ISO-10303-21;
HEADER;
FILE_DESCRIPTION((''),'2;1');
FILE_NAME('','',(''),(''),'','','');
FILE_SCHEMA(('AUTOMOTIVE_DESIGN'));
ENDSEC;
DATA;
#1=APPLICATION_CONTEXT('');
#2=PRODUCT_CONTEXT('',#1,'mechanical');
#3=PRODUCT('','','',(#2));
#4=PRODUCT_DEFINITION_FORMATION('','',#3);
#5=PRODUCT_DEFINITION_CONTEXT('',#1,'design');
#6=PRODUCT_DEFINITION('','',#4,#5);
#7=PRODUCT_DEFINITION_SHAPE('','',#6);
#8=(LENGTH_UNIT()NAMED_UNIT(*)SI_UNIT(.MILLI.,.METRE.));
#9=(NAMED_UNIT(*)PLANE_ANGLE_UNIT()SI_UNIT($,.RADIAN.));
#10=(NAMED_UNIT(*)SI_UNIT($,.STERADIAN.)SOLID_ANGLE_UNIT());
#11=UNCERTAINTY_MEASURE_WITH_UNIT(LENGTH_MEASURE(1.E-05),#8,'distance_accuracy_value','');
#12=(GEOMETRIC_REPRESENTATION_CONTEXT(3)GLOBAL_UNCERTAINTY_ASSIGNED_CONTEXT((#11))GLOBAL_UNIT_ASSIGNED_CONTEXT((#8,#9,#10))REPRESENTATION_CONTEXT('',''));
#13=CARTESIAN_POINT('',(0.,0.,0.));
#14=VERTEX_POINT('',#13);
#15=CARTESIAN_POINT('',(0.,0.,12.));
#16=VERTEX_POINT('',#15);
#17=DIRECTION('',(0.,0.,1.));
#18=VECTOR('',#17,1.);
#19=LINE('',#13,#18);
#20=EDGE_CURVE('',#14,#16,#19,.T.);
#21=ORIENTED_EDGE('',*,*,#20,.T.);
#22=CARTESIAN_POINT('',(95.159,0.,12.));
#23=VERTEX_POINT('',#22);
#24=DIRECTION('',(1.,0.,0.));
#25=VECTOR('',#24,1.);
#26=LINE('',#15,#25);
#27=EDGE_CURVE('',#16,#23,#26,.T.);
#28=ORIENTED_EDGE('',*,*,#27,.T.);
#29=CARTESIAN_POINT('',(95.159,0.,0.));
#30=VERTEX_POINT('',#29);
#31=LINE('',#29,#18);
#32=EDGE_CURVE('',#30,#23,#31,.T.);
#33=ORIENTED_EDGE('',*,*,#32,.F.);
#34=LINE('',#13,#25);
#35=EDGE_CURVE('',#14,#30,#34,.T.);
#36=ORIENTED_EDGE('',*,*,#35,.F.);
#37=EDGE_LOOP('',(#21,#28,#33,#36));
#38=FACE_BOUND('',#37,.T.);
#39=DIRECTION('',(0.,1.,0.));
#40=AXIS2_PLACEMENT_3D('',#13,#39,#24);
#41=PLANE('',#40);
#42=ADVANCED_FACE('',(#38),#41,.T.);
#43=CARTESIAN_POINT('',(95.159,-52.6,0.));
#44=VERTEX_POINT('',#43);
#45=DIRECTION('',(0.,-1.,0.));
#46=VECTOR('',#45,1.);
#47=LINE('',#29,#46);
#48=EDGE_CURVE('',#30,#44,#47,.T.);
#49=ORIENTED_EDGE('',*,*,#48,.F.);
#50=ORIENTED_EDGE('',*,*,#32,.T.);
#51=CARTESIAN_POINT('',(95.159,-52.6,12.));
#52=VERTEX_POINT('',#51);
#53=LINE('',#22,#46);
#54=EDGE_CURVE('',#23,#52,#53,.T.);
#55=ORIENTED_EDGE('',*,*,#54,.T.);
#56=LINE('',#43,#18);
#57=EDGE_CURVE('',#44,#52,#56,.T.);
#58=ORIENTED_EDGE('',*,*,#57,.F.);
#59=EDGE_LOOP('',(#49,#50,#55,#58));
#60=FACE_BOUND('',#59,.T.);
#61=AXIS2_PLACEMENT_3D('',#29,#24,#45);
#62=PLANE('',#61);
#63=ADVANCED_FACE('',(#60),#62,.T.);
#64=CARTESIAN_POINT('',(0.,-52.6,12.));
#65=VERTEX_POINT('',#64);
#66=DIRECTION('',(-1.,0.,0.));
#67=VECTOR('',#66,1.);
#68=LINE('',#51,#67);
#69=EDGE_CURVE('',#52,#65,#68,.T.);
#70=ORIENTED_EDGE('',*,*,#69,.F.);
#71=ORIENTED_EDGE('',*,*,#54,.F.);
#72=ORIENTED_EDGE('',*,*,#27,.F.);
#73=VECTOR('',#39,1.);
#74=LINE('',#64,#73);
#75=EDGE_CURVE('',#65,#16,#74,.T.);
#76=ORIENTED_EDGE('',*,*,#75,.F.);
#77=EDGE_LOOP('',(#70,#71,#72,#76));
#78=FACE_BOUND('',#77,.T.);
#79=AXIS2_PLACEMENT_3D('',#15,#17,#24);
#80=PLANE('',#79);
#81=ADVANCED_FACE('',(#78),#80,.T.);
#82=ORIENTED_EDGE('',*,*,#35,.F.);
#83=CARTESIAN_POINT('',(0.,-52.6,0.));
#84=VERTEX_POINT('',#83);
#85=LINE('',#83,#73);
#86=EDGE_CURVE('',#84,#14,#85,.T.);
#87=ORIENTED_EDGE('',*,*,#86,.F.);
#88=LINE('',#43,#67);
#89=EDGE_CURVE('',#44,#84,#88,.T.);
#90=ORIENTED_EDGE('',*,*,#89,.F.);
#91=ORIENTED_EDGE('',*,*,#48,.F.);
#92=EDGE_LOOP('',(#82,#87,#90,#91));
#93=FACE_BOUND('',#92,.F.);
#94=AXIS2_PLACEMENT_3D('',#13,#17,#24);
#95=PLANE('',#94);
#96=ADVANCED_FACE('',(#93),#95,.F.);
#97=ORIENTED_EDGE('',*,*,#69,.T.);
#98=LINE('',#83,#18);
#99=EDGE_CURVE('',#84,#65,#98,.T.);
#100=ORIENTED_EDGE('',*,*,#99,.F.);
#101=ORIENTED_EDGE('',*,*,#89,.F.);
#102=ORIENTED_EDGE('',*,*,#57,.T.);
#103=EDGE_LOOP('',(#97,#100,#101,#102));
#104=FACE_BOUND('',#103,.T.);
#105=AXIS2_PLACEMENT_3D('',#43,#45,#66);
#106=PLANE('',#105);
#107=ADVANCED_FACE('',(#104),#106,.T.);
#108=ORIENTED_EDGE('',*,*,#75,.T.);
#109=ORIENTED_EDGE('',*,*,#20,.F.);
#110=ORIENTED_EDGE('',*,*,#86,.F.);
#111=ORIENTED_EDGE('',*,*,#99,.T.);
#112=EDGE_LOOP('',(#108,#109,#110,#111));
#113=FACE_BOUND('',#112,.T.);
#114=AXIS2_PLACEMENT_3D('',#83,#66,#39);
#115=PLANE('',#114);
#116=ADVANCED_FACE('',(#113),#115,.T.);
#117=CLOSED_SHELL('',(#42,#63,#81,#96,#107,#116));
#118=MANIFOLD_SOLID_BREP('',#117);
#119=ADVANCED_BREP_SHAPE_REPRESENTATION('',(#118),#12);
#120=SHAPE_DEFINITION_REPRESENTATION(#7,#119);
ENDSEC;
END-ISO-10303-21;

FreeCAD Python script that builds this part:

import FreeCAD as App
import Part
import Sketcher

V = App.Vector
Q = App.Units.Quantity


def add_polygon(sketch, points):
    """Adds a closed chain of lines whose ends are joined by coincident constraints."""
    first, n = sketch.GeometryCount, len(points)
    for a, b in zip(points, points[1:] + points[:1]):
        sketch.addGeometry(Part.LineSegment(App.Vector(*a, 0), App.Vector(*b, 0)), False)
    for i in range(n):
        sketch.addConstraint(Sketcher.Constraint("Coincident", first + i, 2, first + (i + 1) % n, 1))

doc = App.newDocument("Part")
body = doc.addObject("PartDesign::Body", "Body")

# Sketch on XY plane
sketch1 = doc.addObject("Sketcher::SketchObject", "Sketch")
body.addObject(sketch1)
sketch1.AttachmentSupport = (doc.XY_Plane, [""])
sketch1.MapMode = "FlatFace"
add_polygon(sketch1, [(95, 0), (0, 0), (0, -53), (95, -53)])  # lines 0-3
sketch1.addConstraint(Sketcher.Constraint("Horizontal", 0))
sketch1.addConstraint(Sketcher.Constraint("Vertical", 1))
sketch1.addConstraint(Sketcher.Constraint("Horizontal", 2))
sketch1.addConstraint(Sketcher.Constraint("Vertical", 3))
sketch1.addConstraint(Sketcher.Constraint("Coincident", 0, 2, -1, 1))
sketch1.addConstraint(Sketcher.Constraint("DistanceY", 1, 2, 1, 1, Q("52.6 mm")))
sketch1.addConstraint(Sketcher.Constraint("DistanceX", 0, 2, 0, 1, Q("95.159 mm")))
pad1 = doc.addObject("PartDesign::Pad", "Pad")
body.addObject(pad1)
pad1.Profile = sketch1
pad1.Length = 12

doc.recompute()
